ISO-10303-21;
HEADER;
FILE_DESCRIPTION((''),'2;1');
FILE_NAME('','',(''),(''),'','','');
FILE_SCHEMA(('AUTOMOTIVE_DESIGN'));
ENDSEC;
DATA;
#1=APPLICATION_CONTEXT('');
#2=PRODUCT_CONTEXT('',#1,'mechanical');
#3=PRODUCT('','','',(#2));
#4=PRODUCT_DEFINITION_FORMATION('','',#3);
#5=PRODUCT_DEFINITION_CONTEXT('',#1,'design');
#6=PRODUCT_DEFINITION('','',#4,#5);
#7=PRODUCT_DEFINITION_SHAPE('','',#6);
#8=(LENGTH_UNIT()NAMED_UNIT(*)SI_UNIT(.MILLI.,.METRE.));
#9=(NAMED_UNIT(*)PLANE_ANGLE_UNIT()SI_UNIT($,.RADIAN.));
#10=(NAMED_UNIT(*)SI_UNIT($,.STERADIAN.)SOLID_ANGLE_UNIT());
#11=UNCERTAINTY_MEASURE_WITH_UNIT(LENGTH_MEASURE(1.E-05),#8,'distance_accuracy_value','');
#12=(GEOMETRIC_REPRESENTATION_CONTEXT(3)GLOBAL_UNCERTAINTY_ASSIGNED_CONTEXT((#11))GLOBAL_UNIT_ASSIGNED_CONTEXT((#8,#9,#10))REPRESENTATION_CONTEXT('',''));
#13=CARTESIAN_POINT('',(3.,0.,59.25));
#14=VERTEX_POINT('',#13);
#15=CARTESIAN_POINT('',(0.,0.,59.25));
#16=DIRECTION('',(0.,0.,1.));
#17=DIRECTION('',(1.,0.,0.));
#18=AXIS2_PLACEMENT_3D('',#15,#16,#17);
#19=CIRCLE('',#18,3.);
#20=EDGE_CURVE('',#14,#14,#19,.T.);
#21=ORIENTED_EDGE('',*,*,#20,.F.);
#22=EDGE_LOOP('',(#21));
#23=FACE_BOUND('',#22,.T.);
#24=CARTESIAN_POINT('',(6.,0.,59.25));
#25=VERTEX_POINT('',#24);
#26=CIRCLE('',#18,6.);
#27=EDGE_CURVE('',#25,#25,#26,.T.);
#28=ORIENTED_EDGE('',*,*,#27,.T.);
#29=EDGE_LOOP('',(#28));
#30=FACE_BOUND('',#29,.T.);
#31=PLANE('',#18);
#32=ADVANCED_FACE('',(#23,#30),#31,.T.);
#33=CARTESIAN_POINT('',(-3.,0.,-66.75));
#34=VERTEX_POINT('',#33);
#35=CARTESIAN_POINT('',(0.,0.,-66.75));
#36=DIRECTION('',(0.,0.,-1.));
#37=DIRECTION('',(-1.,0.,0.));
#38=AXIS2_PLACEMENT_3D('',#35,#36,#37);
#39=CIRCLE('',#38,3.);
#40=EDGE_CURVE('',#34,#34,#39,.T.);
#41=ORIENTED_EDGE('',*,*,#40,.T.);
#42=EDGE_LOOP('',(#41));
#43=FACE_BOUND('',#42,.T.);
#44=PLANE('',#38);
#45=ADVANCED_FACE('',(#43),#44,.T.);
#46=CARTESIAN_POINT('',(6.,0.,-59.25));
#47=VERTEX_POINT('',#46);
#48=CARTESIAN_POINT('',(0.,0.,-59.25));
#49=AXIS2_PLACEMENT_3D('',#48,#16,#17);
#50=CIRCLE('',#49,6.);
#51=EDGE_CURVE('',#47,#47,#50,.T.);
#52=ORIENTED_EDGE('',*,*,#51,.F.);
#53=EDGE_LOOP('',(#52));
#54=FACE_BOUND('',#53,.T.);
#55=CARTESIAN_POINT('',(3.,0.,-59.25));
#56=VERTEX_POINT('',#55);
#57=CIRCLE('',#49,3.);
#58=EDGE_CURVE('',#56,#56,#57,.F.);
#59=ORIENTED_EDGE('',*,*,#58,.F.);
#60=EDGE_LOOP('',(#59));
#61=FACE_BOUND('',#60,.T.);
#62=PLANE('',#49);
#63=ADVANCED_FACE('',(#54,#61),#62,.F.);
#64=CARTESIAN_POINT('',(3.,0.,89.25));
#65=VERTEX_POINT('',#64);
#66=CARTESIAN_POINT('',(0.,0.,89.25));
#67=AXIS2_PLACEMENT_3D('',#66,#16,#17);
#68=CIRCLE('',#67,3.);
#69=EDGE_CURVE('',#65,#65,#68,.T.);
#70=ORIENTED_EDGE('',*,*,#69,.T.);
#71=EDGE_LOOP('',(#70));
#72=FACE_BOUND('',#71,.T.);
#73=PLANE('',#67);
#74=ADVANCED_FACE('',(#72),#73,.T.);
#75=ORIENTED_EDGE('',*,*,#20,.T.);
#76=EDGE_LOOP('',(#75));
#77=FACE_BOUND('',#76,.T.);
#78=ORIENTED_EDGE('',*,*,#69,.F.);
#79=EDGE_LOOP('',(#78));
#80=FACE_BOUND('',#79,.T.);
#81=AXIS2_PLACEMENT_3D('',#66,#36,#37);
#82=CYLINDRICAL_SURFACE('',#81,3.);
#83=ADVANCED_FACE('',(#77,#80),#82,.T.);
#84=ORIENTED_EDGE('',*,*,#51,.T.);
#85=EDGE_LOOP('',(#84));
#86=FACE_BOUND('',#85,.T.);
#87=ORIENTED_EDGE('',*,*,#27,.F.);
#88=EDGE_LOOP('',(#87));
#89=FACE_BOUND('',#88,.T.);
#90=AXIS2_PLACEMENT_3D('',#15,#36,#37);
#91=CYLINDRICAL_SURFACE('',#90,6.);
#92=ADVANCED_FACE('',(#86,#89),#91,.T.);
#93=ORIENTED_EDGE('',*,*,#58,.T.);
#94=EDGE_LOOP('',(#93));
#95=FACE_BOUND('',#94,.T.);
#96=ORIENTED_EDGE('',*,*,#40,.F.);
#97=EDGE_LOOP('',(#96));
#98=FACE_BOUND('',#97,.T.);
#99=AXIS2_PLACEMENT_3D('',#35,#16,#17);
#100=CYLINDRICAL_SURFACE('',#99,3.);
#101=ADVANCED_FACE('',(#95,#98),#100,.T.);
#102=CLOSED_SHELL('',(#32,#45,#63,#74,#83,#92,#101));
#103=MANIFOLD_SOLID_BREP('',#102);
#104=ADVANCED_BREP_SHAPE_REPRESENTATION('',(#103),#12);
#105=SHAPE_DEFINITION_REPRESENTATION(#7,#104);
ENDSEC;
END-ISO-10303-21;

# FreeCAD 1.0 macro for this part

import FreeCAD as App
import Part
import Sketcher
from FreeCAD import Vector

doc = App.newDocument("Part")
body = doc.addObject("PartDesign::Body", "Body")

# Sketch on XY plane
sketch1 = doc.addObject("Sketcher::SketchObject", "Sketch")
body.addObject(sketch1)
sketch1.AttachmentSupport = (doc.XY_Plane, [""])
sketch1.MapMode = "FlatFace"
sketch1.addGeometry(Part.Circle(Vector(0, 0, 0), Vector(0, 0, 1), 6), False)
sketch1.addConstraint([
    Sketcher.Constraint("Coincident", 0, 3, -1, 1),
    Sketcher.Constraint("Diameter", 0, 12.0),
])
pad1 = doc.addObject("PartDesign::Pad", "Pad")
body.addObject(pad1)
pad1.Profile = sketch1
pad1.Length = 118.5
pad1.Midplane = True

# Sketch on XY plane
sketch2 = doc.addObject("Sketcher::SketchObject", "Sketch001")
body.addObject(sketch2)
sketch2.AttachmentSupport = (doc.XY_Plane, [""])
sketch2.MapMode = "FlatFace"
sketch2.AttachmentOffset = App.Placement(Vector(0, 0, -59.25), App.Rotation())
sketch2.addGeometry(Part.Circle(Vector(0, 0, 0), Vector(0, 0, 1), 3), False)
sketch2.addConstraint([
    Sketcher.Constraint("Coincident", 0, 3, -1, 1),
    Sketcher.Constraint("Diameter", 0, 6.0),
])
pad2 = doc.addObject("PartDesign::Pad", "Pad001")
body.addObject(pad2)
pad2.Profile = sketch2
pad2.Length = 7.5
pad2.Reversed = True

# Sketch on XY plane
sketch3 = doc.addObject("Sketcher::SketchObject", "Sketch002")
body.addObject(sketch3)
sketch3.AttachmentSupport = (doc.XY_Plane, [""])
sketch3.MapMode = "FlatFace"
sketch3.AttachmentOffset = App.Placement(Vector(0, 0, 89.25), App.Rotation())
sketch3.addGeometry(Part.Circle(Vector(0, 0, 0), Vector(0, 0, 1), 3), False)
sketch3.addConstraint([
    Sketcher.Constraint("Coincident", 0, 3, -1, 1),
    Sketcher.Constraint("Diameter", 0, 6.0),
])
pad3 = doc.addObject("PartDesign::Pad", "Pad002")
body.addObject(pad3)
pad3.Profile = sketch3
pad3.Length = 30
pad3.Reversed = True

doc.recompute()
